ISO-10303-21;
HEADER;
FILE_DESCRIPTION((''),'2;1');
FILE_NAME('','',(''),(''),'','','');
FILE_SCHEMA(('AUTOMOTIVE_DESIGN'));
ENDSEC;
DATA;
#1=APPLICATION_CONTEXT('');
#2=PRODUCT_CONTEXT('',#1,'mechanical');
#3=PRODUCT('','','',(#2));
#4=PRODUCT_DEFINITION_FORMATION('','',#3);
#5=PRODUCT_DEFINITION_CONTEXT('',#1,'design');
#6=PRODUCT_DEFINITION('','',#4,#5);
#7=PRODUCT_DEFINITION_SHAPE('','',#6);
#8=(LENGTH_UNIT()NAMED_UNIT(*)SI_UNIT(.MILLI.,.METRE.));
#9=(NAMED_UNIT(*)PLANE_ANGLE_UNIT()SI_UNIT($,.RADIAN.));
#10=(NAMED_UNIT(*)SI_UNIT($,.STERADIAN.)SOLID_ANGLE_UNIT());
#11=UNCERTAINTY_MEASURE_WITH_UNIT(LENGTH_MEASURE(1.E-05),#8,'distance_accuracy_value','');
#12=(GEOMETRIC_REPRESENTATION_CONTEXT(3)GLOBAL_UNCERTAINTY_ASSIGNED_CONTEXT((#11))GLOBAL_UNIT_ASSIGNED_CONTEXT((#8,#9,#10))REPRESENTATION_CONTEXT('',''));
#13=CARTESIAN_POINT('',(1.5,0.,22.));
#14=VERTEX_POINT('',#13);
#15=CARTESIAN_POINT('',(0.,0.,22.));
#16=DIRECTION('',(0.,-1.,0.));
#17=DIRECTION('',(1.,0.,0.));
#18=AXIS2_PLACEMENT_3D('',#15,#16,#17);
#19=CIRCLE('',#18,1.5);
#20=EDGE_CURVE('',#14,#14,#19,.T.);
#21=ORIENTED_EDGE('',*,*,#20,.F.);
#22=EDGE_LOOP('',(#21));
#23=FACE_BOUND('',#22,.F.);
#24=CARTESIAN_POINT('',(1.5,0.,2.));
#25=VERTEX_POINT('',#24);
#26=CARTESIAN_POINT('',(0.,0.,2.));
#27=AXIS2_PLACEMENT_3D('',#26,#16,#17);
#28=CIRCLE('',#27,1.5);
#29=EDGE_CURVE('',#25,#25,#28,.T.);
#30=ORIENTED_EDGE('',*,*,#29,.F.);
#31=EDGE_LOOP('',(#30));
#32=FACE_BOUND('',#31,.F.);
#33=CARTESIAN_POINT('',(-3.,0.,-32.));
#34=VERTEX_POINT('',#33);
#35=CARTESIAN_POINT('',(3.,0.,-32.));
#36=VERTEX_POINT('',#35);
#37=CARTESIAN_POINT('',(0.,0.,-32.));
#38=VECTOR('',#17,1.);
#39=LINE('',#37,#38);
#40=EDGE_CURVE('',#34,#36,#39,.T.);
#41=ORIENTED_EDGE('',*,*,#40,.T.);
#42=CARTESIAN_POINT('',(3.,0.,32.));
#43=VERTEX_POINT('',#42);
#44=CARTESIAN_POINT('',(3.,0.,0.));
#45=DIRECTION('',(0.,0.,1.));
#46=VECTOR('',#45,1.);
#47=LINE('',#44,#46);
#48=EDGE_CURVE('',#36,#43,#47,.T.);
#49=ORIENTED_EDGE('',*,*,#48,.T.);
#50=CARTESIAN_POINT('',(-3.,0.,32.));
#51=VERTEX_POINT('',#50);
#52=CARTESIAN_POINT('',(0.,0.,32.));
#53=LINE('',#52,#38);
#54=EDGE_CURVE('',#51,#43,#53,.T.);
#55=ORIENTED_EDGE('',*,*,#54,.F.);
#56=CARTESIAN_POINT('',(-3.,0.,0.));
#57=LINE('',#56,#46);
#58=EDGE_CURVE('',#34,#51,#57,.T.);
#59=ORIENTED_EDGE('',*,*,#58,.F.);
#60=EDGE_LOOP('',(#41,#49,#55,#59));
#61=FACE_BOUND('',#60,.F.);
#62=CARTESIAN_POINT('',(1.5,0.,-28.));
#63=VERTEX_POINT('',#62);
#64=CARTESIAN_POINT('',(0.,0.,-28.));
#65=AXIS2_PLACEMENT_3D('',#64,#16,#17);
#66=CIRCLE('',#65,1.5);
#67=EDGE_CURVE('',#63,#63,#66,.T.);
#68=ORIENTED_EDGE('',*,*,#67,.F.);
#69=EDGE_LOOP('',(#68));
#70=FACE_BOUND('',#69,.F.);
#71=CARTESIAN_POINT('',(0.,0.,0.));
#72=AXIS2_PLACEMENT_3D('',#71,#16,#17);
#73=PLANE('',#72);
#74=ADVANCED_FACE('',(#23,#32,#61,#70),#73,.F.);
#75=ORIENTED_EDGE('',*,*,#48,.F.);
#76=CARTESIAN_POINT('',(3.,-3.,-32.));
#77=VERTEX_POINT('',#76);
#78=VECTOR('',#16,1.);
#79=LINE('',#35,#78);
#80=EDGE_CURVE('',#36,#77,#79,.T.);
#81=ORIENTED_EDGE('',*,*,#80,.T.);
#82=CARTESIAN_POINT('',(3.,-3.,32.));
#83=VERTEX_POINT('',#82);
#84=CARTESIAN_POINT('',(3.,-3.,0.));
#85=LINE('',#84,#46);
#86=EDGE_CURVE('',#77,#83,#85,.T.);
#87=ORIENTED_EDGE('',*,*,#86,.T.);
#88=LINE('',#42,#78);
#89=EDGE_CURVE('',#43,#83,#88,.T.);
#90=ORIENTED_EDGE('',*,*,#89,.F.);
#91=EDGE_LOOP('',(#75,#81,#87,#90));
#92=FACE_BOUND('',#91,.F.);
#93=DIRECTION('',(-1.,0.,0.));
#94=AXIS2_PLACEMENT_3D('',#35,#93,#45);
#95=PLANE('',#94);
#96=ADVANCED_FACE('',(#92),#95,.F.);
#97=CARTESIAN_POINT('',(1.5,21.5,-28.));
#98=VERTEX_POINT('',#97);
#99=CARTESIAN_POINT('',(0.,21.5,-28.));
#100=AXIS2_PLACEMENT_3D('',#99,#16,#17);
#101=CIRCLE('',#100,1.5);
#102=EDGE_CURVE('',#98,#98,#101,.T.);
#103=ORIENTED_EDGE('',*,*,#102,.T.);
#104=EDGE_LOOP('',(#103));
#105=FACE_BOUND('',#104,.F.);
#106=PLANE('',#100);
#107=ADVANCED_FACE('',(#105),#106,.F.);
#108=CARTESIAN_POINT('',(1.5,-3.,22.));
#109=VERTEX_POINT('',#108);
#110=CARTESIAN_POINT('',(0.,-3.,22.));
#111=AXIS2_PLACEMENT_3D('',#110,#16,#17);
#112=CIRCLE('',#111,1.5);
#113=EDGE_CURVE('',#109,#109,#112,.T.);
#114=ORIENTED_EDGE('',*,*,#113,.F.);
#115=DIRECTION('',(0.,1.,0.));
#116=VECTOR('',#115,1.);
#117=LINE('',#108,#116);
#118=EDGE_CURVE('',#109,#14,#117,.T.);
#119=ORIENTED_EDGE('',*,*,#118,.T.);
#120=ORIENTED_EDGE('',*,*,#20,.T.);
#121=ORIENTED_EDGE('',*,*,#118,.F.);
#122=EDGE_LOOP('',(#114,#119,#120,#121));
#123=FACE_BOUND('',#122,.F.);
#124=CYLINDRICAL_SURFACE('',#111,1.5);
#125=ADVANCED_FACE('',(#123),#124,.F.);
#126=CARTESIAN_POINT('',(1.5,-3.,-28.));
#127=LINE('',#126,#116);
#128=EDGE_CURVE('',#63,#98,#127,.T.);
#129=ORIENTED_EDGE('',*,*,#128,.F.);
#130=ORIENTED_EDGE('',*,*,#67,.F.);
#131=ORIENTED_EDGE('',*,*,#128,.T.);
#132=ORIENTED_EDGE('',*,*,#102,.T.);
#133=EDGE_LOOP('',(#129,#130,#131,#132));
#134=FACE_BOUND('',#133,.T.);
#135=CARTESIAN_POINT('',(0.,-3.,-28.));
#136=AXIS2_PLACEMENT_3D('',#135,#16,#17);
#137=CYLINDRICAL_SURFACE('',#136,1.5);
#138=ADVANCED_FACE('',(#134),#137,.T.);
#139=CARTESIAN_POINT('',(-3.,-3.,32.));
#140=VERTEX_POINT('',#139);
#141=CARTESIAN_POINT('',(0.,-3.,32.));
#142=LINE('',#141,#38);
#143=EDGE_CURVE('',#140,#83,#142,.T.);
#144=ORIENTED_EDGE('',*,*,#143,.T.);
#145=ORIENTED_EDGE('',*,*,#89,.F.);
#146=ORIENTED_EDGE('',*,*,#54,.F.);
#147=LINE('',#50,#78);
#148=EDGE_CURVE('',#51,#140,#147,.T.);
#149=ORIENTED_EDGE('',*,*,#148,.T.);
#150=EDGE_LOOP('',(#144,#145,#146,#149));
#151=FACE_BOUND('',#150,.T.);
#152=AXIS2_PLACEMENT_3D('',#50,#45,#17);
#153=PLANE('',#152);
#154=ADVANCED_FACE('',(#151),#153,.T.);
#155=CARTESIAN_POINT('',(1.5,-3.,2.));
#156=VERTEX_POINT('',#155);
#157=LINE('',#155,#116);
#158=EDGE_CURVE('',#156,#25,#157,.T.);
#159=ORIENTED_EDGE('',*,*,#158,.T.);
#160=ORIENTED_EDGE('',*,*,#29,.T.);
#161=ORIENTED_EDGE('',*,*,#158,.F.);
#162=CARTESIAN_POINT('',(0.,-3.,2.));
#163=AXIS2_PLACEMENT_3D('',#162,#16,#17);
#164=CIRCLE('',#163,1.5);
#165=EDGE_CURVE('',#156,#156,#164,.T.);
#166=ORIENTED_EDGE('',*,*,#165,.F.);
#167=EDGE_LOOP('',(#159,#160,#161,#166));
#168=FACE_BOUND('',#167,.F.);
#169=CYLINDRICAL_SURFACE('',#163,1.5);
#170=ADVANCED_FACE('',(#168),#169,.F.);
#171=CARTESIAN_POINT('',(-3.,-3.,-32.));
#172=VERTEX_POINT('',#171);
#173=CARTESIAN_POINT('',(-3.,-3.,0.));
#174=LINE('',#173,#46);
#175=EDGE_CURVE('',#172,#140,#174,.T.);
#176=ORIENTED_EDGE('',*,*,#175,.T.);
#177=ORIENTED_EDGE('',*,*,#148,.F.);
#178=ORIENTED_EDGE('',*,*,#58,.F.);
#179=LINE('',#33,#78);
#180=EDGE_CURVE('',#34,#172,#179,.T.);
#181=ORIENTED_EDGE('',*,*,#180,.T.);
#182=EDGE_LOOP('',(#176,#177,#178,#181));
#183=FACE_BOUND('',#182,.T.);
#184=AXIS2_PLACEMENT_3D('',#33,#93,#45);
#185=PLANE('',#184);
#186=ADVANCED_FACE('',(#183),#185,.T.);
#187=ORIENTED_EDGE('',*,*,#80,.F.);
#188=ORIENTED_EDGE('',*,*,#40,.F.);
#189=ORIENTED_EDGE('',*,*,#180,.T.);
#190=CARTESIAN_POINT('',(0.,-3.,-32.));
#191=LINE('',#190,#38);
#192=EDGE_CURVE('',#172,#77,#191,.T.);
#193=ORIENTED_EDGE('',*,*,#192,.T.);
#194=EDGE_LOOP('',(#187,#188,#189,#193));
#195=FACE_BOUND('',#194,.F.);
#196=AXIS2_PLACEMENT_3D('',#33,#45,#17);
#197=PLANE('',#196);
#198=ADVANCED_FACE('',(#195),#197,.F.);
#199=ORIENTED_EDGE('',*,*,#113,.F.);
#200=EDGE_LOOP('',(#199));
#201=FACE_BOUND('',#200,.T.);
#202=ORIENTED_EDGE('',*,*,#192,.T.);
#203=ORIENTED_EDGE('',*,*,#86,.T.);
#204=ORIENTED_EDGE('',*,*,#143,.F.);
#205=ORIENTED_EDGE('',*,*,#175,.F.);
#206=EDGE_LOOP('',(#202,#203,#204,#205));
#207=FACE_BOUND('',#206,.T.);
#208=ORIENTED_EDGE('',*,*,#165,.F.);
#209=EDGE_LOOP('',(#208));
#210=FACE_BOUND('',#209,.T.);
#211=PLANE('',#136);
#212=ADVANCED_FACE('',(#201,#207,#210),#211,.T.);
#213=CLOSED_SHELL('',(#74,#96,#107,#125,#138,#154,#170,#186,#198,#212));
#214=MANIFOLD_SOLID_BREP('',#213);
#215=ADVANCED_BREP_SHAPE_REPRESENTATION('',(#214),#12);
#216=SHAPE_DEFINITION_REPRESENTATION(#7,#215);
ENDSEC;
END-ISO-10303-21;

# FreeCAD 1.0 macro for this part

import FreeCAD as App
import Part
import Sketcher

V = App.Vector
Q = App.Units.Quantity


def add_polygon(sketch, points):
    """Adds a closed chain of lines whose ends are joined by coincident constraints."""
    first, n = sketch.GeometryCount, len(points)
    for a, b in zip(points, points[1:] + points[:1]):
        sketch.addGeometry(Part.LineSegment(App.Vector(*a, 0), App.Vector(*b, 0)), False)
    for i in range(n):
        sketch.addConstraint(Sketcher.Constraint("Coincident", first + i, 2, first + (i + 1) % n, 1))

doc = App.newDocument("Part")
body = doc.addObject("PartDesign::Body", "Body")

sketch1 = doc.addObject("Sketcher::SketchObject", "Sketch")
body.addObject(sketch1)
sketch1.AttachmentSupport = (doc.XZ_Plane, [""])
sketch1.MapMode = "FlatFace"
add_polygon(sketch1, [(-3, 32), (-3, -32), (3, -32), (3, 32)])
sketch1.addConstraint(Sketcher.Constraint("Vertical", 0))
sketch1.addConstraint(Sketcher.Constraint("Horizontal", 1))
sketch1.addConstraint(Sketcher.Constraint("Vertical", 2))
sketch1.addConstraint(Sketcher.Constraint("Horizontal", 3))
sketch1.addConstraint(Sketcher.Constraint("Symmetric", 0, 2, 2, 2, -1, 1))
sketch1.addConstraint(Sketcher.Constraint("DistanceX", 1, 1, 1, 2, Q("6 mm")))
sketch1.addConstraint(Sketcher.Constraint("DistanceY", 0, 2, 0, 1, Q("64 mm")))
pad1 = doc.addObject("PartDesign::Pad", "Pad")
body.addObject(pad1)
pad1.Profile = sketch1
pad1.Length = 3

sketch2 = doc.addObject("Sketcher::SketchObject", "Sketch001")
body.addObject(sketch2)
sketch2.AttachmentSupport = (doc.XZ_Plane, [""])
sketch2.MapMode = "FlatFace"
sketch2.AttachmentOffset = App.Placement(V(0, 0, 3), App.Rotation())
sketch2.addGeometry(Part.Circle(V(0, 2, 0), V(0, 0, 1), 1.5), False)
sketch2.addGeometry(Part.Circle(V(0, 22, 0), V(0, 0, 1), 1.5), False)
sketch2.addConstraint(Sketcher.Constraint("Equal", 0, 1))
sketch2.addConstraint(Sketcher.Constraint("PointOnObject", 0, 3, -2))
sketch2.addConstraint(Sketcher.Constraint("PointOnObject", 1, 3, -2))
sketch2.addConstraint(Sketcher.Constraint("Diameter", 0, Q("3 mm")))
sketch2.addConstraint(Sketcher.Constraint("DistanceY", -1, 1, 0, 3, Q("2 mm")))
sketch2.addConstraint(Sketcher.Constraint("DistanceY", -1, 1, 1, 3, Q("22 mm")))
pocket1 = doc.addObject("PartDesign::Pocket", "Pocket")
body.addObject(pocket1)
pocket1.Profile = sketch2
pocket1.Length = 5

sketch3 = doc.addObject("Sketcher::SketchObject", "Sketch002")
body.addObject(sketch3)
sketch3.AttachmentSupport = (doc.XZ_Plane, [""])
sketch3.MapMode = "FlatFace"
sketch3.AttachmentOffset = App.Placement(V(0, 0, 3), App.Rotation())
sketch3.addGeometry(Part.Circle(V(0, -28, 0), V(0, 0, 1), 1.5), False)
sketch3.addConstraint(Sketcher.Constraint("PointOnObject", 0, 3, -2))
sketch3.addConstraint(Sketcher.Constraint("Diameter", 0, Q("3 mm")))
sketch3.addConstraint(Sketcher.Constraint("DistanceY", 0, 3, -1, 1, Q("28 mm")))
pad2 = doc.addObject("PartDesign::Pad", "Pad001")
body.addObject(pad2)
pad2.Profile = sketch3
pad2.Length = 24.5
pad2.Reversed = True

doc.recompute()
